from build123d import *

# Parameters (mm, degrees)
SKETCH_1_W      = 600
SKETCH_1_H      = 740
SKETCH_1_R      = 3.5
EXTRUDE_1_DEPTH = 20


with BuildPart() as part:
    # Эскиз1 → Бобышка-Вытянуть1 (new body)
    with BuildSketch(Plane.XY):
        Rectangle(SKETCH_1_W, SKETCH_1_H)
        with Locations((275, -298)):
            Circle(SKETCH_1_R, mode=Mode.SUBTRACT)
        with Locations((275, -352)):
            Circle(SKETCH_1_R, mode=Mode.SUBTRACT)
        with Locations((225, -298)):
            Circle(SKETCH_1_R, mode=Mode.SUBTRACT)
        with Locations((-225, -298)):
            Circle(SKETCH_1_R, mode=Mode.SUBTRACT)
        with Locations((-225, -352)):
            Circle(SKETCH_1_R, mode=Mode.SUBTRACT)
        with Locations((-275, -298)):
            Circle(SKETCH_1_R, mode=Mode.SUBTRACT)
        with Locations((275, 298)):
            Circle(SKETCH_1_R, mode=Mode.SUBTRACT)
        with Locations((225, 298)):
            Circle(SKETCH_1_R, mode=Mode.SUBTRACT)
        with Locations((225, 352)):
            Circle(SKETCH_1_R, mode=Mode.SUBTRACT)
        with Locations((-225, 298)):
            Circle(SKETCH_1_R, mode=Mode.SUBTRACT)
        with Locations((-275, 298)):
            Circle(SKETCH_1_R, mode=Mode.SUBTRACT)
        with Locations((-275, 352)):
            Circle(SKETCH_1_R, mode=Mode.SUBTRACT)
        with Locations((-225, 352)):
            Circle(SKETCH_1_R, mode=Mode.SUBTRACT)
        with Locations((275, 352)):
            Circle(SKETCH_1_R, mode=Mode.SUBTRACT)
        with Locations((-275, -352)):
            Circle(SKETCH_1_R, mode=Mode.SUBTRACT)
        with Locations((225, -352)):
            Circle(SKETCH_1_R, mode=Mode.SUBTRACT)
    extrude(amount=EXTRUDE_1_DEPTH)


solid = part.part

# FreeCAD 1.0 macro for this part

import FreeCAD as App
import Part
import Sketcher
Q = App.Units.Quantity

doc = App.newDocument("Part")
body = doc.addObject("PartDesign::Body", "Body")

# Sketch on XY plane
sketch1 = body.newObject("Sketcher::SketchObject", "Sketch")
sketch1.AttachmentSupport = (doc.getObject("XY_Plane"), [""])
sketch1.MapMode = "FlatFace"
sketch1.addGeometry(Part.LineSegment(App.Vector(-300, 370, 0), App.Vector(-300, -370, 0)), False)
sketch1.addGeometry(Part.LineSegment(App.Vector(-300, -370, 0), App.Vector(300, -370, 0)), False)
sketch1.addGeometry(Part.LineSegment(App.Vector(300, -370, 0), App.Vector(300, 370, 0)), False)
sketch1.addGeometry(Part.LineSegment(App.Vector(300, 370, 0), App.Vector(-300, 370, 0)), False)
sketch1.addGeometry(Part.Circle(App.Vector(-275, -352, 0), App.Vector(0, 0, 1), 3.5), False)
sketch1.addGeometry(Part.Circle(App.Vector(-225, -352, 0), App.Vector(0, 0, 1), 3.5), False)
sketch1.addGeometry(Part.Circle(App.Vector(-275, -298, 0), App.Vector(0, 0, 1), 3.5), False)
sketch1.addGeometry(Part.Circle(App.Vector(-225, -298, 0), App.Vector(0, 0, 1), 3.5), False)
sketch1.addGeometry(Part.Circle(App.Vector(225, -352, 0), App.Vector(0, 0, 1), 3.5), False)
sketch1.addGeometry(Part.Circle(App.Vector(275, -352, 0), App.Vector(0, 0, 1), 3.5), False)
sketch1.addGeometry(Part.Circle(App.Vector(225, -298, 0), App.Vector(0, 0, 1), 3.5), False)
sketch1.addGeometry(Part.Circle(App.Vector(275, -298, 0), App.Vector(0, 0, 1), 3.5), False)
sketch1.addGeometry(Part.Circle(App.Vector(-275, 298, 0), App.Vector(0, 0, 1), 3.5), False)
sketch1.addGeometry(Part.Circle(App.Vector(-225, 298, 0), App.Vector(0, 0, 1), 3.5), False)
sketch1.addGeometry(Part.Circle(App.Vector(-275, 352, 0), App.Vector(0, 0, 1), 3.5), False)
sketch1.addGeometry(Part.Circle(App.Vector(-225, 352, 0), App.Vector(0, 0, 1), 3.5), False)
sketch1.addGeometry(Part.Circle(App.Vector(225, 298, 0), App.Vector(0, 0, 1), 3.5), False)
sketch1.addGeometry(Part.Circle(App.Vector(275, 298, 0), App.Vector(0, 0, 1), 3.5), False)
sketch1.addGeometry(Part.Circle(App.Vector(225, 352, 0), App.Vector(0, 0, 1), 3.5), False)
sketch1.addGeometry(Part.Circle(App.Vector(275, 352, 0), App.Vector(0, 0, 1), 3.5), False)
sketch1.addConstraint(Sketcher.Constraint("Coincident", 0, 2, 1, 1))
sketch1.addConstraint(Sketcher.Constraint("Coincident", 1, 2, 2, 1))
sketch1.addConstraint(Sketcher.Constraint("Coincident", 2, 2, 3, 1))
sketch1.addConstraint(Sketcher.Constraint("Coincident", 3, 2, 0, 1))
sketch1.addConstraint(Sketcher.Constraint("Vertical", 0))
sketch1.addConstraint(Sketcher.Constraint("Horizontal", 1))
sketch1.addConstraint(Sketcher.Constraint("Vertical", 2))
sketch1.addConstraint(Sketcher.Constraint("Horizontal", 3))
sketch1.addConstraint(Sketcher.Constraint("Equal", 4, 5))
sketch1.addConstraint(Sketcher.Constraint("Equal", 5, 6))
sketch1.addConstraint(Sketcher.Constraint("Equal", 6, 7))
sketch1.addConstraint(Sketcher.Constraint("Equal", 7, 8))
sketch1.addConstraint(Sketcher.Constraint("Equal", 8, 9))
sketch1.addConstraint(Sketcher.Constraint("Equal", 9, 10))
sketch1.addConstraint(Sketcher.Constraint("Equal", 10, 11))
sketch1.addConstraint(Sketcher.Constraint("Equal", 11, 12))
sketch1.addConstraint(Sketcher.Constraint("Equal", 12, 13))
sketch1.addConstraint(Sketcher.Constraint("Equal", 13, 14))
sketch1.addConstraint(Sketcher.Constraint("Equal", 14, 15))
sketch1.addConstraint(Sketcher.Constraint("Equal", 15, 16))
sketch1.addConstraint(Sketcher.Constraint("Equal", 16, 17))
sketch1.addConstraint(Sketcher.Constraint("Equal", 17, 18))
sketch1.addConstraint(Sketcher.Constraint("Equal", 18, 19))
sketch1.addConstraint(Sketcher.Constraint("Symmetric", 11, 3, 12, 3, -1, 1))
sketch1.addConstraint(Sketcher.Constraint("Symmetric", 10, 3, 13, 3, -1, 1))
sketch1.addConstraint(Sketcher.Constraint("Symmetric", 9, 3, 14, 3, -1, 1))
sketch1.addConstraint(Sketcher.Constraint("Symmetric", 8, 3, 15, 3, -1, 1))
sketch1.addConstraint(Sketcher.Constraint("Symmetric", 7, 3, 16, 3, -1, 1))
sketch1.addConstraint(Sketcher.Constraint("Symmetric", 6, 3, 17, 3, -1, 1))
sketch1.addConstraint(Sketcher.Constraint("Symmetric", 5, 3, 18, 3, -1, 1))
sketch1.addConstraint(Sketcher.Constraint("Symmetric", 4, 3, 19, 3, -1, 1))
sketch1.addConstraint(Sketcher.Constraint("Symmetric", 0, 2, 2, 2, -1, 1))
sketch1.addConstraint(Sketcher.Constraint("Symmetric", 5, 3, 8, 3, -2))
sketch1.addConstraint(Sketcher.Constraint("Symmetric", 4, 3, 9, 3, -2))
sketch1.addConstraint(Sketcher.Constraint("Symmetric", 7, 3, 10, 3, -2))
sketch1.addConstraint(Sketcher.Constraint("Symmetric", 6, 3, 11, 3, -2))
sketch1.addConstraint(Sketcher.Constraint("Horizontal", 4, 3, 5, 3))
sketch1.addConstraint(Sketcher.Constraint("Horizontal", 6, 3, 7, 3))
sketch1.addConstraint(Sketcher.Constraint("Vertical", 4, 3, 6, 3))
sketch1.addConstraint(Sketcher.Constraint("Vertical", 5, 3, 7, 3))
sketch1.addConstraint(Sketcher.Constraint("Diameter", 4, Q("7 mm")))
sketch1.addConstraint(Sketcher.Constraint("DistanceX", 1, 1, 1, 2, Q("600 mm")))
sketch1.addConstraint(Sketcher.Constraint("DistanceY", 0, 2, 0, 1, Q("740 mm")))
sketch1.addConstraint(Sketcher.Constraint("DistanceX", 4, 3, -1, 1, Q("275 mm")))
sketch1.addConstraint(Sketcher.Constraint("DistanceY", 4, 3, -1, 1, Q("352 mm")))
sketch1.addConstraint(Sketcher.Constraint("DistanceX", 5, 3, -1, 1, Q("225 mm")))
sketch1.addConstraint(Sketcher.Constraint("DistanceY", 6, 3, -1, 1, Q("298 mm")))
pad1 = body.newObject("PartDesign::Pad", "Pad")
pad1.Profile = sketch1
pad1.Length = 20

doc.recompute()
